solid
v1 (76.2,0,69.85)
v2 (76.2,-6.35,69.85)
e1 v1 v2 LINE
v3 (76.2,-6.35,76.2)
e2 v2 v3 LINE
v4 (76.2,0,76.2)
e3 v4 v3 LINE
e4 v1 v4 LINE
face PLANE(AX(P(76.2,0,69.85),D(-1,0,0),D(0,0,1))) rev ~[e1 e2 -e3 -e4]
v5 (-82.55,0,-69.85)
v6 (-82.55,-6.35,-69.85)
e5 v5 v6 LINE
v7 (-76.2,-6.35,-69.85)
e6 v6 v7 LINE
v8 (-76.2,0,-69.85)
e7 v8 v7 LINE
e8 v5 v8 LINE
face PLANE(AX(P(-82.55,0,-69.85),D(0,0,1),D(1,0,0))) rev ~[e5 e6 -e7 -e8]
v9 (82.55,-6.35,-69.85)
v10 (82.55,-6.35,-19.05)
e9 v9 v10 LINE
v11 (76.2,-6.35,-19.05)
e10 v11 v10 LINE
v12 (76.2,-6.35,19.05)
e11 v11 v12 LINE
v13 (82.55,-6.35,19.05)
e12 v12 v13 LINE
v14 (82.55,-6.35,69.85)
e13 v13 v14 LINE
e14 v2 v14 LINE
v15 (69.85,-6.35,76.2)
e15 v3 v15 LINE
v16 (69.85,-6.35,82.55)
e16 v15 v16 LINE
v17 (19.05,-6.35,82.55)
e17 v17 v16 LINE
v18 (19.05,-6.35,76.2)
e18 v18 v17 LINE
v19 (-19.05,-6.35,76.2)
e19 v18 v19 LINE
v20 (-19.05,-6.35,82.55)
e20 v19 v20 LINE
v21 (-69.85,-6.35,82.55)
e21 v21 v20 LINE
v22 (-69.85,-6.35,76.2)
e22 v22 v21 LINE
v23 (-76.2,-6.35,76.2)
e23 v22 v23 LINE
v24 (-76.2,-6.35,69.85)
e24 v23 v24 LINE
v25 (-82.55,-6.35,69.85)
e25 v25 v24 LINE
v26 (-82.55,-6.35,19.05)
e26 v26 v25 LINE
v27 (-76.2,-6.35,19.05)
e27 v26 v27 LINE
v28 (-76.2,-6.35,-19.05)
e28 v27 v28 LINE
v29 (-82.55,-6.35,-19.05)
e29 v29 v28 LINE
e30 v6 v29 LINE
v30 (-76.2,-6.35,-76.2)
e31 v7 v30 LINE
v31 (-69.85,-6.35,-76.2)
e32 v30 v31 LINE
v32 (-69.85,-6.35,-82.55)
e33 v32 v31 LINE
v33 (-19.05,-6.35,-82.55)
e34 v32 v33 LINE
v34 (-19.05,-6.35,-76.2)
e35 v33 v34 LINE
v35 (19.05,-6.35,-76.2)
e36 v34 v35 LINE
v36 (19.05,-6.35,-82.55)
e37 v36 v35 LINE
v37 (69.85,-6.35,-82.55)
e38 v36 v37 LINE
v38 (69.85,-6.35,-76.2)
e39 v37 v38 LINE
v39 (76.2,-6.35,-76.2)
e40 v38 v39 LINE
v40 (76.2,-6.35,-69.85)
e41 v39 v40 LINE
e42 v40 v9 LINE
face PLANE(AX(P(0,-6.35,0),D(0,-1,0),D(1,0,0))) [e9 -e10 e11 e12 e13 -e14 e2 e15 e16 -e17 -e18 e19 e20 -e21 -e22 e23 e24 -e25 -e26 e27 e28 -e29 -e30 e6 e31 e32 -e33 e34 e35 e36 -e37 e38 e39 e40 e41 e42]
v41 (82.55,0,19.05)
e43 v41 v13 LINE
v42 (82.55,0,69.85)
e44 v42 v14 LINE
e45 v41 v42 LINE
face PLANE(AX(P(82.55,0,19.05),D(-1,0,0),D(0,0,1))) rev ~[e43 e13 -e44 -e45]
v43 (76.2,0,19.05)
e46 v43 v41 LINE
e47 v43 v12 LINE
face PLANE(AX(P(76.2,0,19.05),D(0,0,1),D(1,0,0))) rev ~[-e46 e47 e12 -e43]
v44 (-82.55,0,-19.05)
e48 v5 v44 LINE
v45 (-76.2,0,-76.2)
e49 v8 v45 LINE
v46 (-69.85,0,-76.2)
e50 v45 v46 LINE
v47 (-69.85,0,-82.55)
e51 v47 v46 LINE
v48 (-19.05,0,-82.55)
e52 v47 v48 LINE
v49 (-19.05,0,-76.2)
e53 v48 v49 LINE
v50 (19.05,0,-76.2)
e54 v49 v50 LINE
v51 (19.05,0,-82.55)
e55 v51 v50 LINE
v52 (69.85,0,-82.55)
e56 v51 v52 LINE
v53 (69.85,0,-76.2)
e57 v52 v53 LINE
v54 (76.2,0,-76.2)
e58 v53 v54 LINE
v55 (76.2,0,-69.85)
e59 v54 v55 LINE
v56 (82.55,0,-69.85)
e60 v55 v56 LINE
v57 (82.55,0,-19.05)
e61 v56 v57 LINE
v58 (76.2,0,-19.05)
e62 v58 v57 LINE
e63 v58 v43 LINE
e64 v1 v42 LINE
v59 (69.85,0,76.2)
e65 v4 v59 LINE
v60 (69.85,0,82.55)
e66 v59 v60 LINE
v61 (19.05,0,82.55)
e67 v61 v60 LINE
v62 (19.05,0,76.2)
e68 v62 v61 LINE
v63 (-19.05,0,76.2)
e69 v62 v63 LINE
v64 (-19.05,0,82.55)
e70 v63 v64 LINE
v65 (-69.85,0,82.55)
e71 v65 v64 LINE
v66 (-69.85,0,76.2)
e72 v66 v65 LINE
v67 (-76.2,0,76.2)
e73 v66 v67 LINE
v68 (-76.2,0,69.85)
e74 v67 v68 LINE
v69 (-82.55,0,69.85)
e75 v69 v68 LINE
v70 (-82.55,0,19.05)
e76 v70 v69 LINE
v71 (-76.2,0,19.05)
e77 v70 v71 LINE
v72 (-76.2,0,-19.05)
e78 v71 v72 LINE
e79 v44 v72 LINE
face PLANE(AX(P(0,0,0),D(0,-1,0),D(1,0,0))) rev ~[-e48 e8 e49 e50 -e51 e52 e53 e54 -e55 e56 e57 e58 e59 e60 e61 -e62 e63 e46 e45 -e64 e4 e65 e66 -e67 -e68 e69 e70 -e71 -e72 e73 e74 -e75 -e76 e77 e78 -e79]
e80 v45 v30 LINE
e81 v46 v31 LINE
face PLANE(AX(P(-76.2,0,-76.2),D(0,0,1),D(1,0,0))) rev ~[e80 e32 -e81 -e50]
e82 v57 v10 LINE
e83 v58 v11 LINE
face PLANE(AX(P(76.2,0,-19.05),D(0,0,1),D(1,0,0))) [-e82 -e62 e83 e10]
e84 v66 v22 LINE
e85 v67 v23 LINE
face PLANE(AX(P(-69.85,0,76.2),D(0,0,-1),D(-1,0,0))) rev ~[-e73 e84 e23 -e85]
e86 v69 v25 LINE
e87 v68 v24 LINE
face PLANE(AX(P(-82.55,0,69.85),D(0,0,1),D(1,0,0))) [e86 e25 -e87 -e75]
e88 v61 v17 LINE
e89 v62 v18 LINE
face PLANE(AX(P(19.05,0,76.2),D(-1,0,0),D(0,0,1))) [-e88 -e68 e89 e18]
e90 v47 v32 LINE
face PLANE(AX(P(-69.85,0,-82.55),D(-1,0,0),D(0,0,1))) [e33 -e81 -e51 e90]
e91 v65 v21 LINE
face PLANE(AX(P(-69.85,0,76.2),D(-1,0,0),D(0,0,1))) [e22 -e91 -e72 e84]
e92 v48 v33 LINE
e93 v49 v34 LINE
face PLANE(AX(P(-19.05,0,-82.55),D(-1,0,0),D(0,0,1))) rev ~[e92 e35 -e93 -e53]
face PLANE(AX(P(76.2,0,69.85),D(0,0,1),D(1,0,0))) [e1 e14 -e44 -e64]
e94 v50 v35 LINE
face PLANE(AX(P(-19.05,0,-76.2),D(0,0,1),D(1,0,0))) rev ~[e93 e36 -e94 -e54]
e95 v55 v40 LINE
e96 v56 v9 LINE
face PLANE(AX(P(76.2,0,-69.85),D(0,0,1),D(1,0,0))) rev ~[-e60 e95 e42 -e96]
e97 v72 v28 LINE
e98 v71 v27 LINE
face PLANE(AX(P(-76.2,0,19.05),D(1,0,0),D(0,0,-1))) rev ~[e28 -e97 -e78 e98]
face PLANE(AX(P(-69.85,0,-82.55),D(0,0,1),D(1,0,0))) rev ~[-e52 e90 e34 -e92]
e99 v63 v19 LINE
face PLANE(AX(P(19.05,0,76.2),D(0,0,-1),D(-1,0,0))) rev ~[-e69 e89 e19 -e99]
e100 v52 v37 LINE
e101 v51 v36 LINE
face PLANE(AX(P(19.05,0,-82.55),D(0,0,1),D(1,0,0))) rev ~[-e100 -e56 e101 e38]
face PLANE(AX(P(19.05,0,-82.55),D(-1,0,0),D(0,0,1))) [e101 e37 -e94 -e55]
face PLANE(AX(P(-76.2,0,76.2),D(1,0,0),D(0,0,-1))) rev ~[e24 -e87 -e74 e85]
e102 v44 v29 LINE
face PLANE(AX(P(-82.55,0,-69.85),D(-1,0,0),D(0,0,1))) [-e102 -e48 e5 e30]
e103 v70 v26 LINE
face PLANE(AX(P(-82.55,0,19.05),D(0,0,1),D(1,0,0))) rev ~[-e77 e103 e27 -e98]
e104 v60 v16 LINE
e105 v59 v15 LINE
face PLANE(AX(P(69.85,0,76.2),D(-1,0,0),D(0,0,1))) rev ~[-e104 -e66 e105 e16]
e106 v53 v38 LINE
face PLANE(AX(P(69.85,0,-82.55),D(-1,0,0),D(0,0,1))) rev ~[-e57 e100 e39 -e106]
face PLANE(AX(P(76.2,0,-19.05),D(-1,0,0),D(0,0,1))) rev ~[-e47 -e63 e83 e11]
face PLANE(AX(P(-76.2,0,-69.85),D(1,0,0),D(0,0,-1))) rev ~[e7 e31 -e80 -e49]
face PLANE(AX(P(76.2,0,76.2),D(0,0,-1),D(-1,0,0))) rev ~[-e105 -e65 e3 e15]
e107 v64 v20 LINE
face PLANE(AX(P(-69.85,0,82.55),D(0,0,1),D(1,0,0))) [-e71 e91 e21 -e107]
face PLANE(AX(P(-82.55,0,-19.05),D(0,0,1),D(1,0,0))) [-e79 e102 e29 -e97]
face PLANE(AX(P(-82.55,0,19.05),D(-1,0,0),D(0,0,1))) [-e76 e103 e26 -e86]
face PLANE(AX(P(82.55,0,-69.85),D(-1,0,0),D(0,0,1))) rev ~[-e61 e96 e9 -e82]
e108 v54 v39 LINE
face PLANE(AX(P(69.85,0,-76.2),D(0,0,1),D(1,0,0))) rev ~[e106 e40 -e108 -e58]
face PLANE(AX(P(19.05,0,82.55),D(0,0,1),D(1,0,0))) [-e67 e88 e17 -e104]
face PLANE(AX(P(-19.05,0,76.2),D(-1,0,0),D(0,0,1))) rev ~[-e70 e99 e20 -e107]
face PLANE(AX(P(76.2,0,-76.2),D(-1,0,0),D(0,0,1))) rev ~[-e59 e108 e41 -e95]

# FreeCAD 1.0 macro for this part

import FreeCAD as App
import Part
import Sketcher

V = App.Vector
Q = App.Units.Quantity

doc = App.newDocument("Part")
params = doc.addObject("Spreadsheet::Sheet", "Params")
for row, (alias, value) in enumerate([
    ("sketch1_width", "2 in"),
    ("sketch1_width2", "1.5 in"),
    ("pad1_length", "0.25 in"),
], start=1):
    params.set(f"A{row}", alias)
    params.set(f"B{row}", "=" + value)
    params.setAlias(f"B{row}", alias)

body = doc.addObject("PartDesign::Body", "Body")

# Sketch on XZ plane
sketch1 = body.newObject("Sketcher::SketchObject", "Sketch")
sketch1.AttachmentSupport = (doc.getObject("XZ_Plane"), [""])
sketch1.MapMode = "FlatFace"
sketch1.addGeometry([
    Part.LineSegment(V(76.2, -76.2, 0), V(76.2, -69.85, 0)),  # 0
    Part.LineSegment(V(76.2, -69.85, 0), V(82.55, -69.85, 0)),  # 1
    Part.LineSegment(V(82.55, -69.85, 0), V(82.55, -19.05, 0)),  # 2
    Part.LineSegment(V(82.55, -19.05, 0), V(76.2, -19.05, 0)),  # 3
    Part.LineSegment(V(76.2, -19.05, 0), V(76.2, 19.05, 0)),  # 4
    Part.LineSegment(V(76.2, 19.05, 0), V(82.55, 19.05, 0)),  # 5
    Part.LineSegment(V(82.55, 19.05, 0), V(82.55, 69.85, 0)),  # 6
    Part.LineSegment(V(82.55, 69.85, 0), V(76.2, 69.85, 0)),  # 7
    Part.LineSegment(V(76.2, 69.85, 0), V(76.2, 76.2, 0)),  # 8
    Part.LineSegment(V(76.2, 76.2, 0), V(69.85, 76.2, 0)),  # 9
    Part.LineSegment(V(69.85, 76.2, 0), V(69.85, 82.55, 0)),  # 10
    Part.LineSegment(V(69.85, 82.55, 0), V(19.05, 82.55, 0)),  # 11
    Part.LineSegment(V(19.05, 82.55, 0), V(19.05, 76.2, 0)),  # 12
    Part.LineSegment(V(19.05, 76.2, 0), V(-19.05, 76.2, 0)),  # 13
    Part.LineSegment(V(-19.05, 76.2, 0), V(-19.05, 82.55, 0)),  # 14
    Part.LineSegment(V(-19.05, 82.55, 0), V(-69.85, 82.55, 0)),  # 15
    Part.LineSegment(V(-69.85, 82.55, 0), V(-69.85, 76.2, 0)),  # 16
    Part.LineSegment(V(-69.85, 76.2, 0), V(-76.2, 76.2, 0)),  # 17
    Part.LineSegment(V(-76.2, 76.2, 0), V(-76.2, 69.85, 0)),  # 18
    Part.LineSegment(V(-76.2, 69.85, 0), V(-82.55, 69.85, 0)),  # 19
    Part.LineSegment(V(-82.55, 69.85, 0), V(-82.55, 19.05, 0)),  # 20
    Part.LineSegment(V(-82.55, 19.05, 0), V(-76.2, 19.05, 0)),  # 21
    Part.LineSegment(V(-76.2, 19.05, 0), V(-76.2, -19.05, 0)),  # 22
    Part.LineSegment(V(-76.2, -19.05, 0), V(-82.55, -19.05, 0)),  # 23
    Part.LineSegment(V(-82.55, -19.05, 0), V(-82.55, -69.85, 0)),  # 24
    Part.LineSegment(V(-82.55, -69.85, 0), V(-76.2, -69.85, 0)),  # 25
    Part.LineSegment(V(-76.2, -69.85, 0), V(-76.2, -76.2, 0)),  # 26
    Part.LineSegment(V(-76.2, -76.2, 0), V(-69.85, -76.2, 0)),  # 27
    Part.LineSegment(V(-69.85, -76.2, 0), V(-69.85, -82.55, 0)),  # 28
    Part.LineSegment(V(-69.85, -82.55, 0), V(-19.05, -82.55, 0)),  # 29
    Part.LineSegment(V(-19.05, -82.55, 0), V(-19.05, -76.2, 0)),  # 30
    Part.LineSegment(V(-19.05, -76.2, 0), V(19.05, -76.2, 0)),  # 31
    Part.LineSegment(V(19.05, -76.2, 0), V(19.05, -82.55, 0)),  # 32
    Part.LineSegment(V(19.05, -82.55, 0), V(69.85, -82.55, 0)),  # 33
    Part.LineSegment(V(69.85, -82.55, 0), V(69.85, -76.2, 0)),  # 34
    Part.LineSegment(V(69.85, -76.2, 0), V(76.2, -76.2, 0)),  # 35
], False)
sketch1.addConstraint([
    Sketcher.Constraint("Coincident", 0, 2, 1, 1),
    Sketcher.Constraint("Coincident", 1, 2, 2, 1),
    Sketcher.Constraint("Coincident", 2, 2, 3, 1),
    Sketcher.Constraint("Coincident", 3, 2, 4, 1),
    Sketcher.Constraint("Coincident", 4, 2, 5, 1),
    Sketcher.Constraint("Coincident", 5, 2, 6, 1),
    Sketcher.Constraint("Coincident", 6, 2, 7, 1),
    Sketcher.Constraint("Coincident", 7, 2, 8, 1),
    Sketcher.Constraint("Coincident", 8, 2, 9, 1),
    Sketcher.Constraint("Coincident", 9, 2, 10, 1),
    Sketcher.Constraint("Coincident", 10, 2, 11, 1),
    Sketcher.Constraint("Coincident", 11, 2, 12, 1),
    Sketcher.Constraint("Coincident", 12, 2, 13, 1),
    Sketcher.Constraint("Coincident", 13, 2, 14, 1),
    Sketcher.Constraint("Coincident", 14, 2, 15, 1),
    Sketcher.Constraint("Coincident", 15, 2, 16, 1),
    Sketcher.Constraint("Coincident", 16, 2, 17, 1),
    Sketcher.Constraint("Coincident", 17, 2, 18, 1),
    Sketcher.Constraint("Coincident", 18, 2, 19, 1),
    Sketcher.Constraint("Coincident", 19, 2, 20, 1),
    Sketcher.Constraint("Coincident", 20, 2, 21, 1),
    Sketcher.Constraint("Coincident", 21, 2, 22, 1),
    Sketcher.Constraint("Coincident", 22, 2, 23, 1),
    Sketcher.Constraint("Coincident", 23, 2, 24, 1),
    Sketcher.Constraint("Coincident", 24, 2, 25, 1),
    Sketcher.Constraint("Coincident", 25, 2, 26, 1),
    Sketcher.Constraint("Coincident", 26, 2, 27, 1),
    Sketcher.Constraint("Coincident", 27, 2, 28, 1),
    Sketcher.Constraint("Coincident", 28, 2, 29, 1),
    Sketcher.Constraint("Coincident", 29, 2, 30, 1),
    Sketcher.Constraint("Coincident", 30, 2, 31, 1),
    Sketcher.Constraint("Coincident", 31, 2, 32, 1),
    Sketcher.Constraint("Coincident", 32, 2, 33, 1),
    Sketcher.Constraint("Coincident", 33, 2, 34, 1),
    Sketcher.Constraint("Coincident", 34, 2, 35, 1),
    Sketcher.Constraint("Coincident", 35, 2, 0, 1),
    Sketcher.Constraint("Vertical", 0),
    Sketcher.Constraint("Horizontal", 1),
    Sketcher.Constraint("Vertical", 2),
    Sketcher.Constraint("Horizontal", 3),
    Sketcher.Constraint("Vertical", 4),
    Sketcher.Constraint("Horizontal", 5),
    Sketcher.Constraint("Vertical", 6),
    Sketcher.Constraint("Horizontal", 7),
    Sketcher.Constraint("Vertical", 8),
    Sketcher.Constraint("Horizontal", 9),
    Sketcher.Constraint("Vertical", 10),
    Sketcher.Constraint("Horizontal", 11),
    Sketcher.Constraint("Vertical", 12),
    Sketcher.Constraint("Horizontal", 13),
    Sketcher.Constraint("Vertical", 14),
    Sketcher.Constraint("Horizontal", 15),
    Sketcher.Constraint("Vertical", 16),
    Sketcher.Constraint("Horizontal", 17),
    Sketcher.Constraint("Vertical", 18),
    Sketcher.Constraint("Horizontal", 19),
    Sketcher.Constraint("Vertical", 20),
    Sketcher.Constraint("Horizontal", 21),
    Sketcher.Constraint("Vertical", 22),
    Sketcher.Constraint("Horizontal", 23),
    Sketcher.Constraint("Vertical", 24),
    Sketcher.Constraint("Horizontal", 25),
    Sketcher.Constraint("Vertical", 26),
    Sketcher.Constraint("Horizontal", 27),
    Sketcher.Constraint("Vertical", 28),
    Sketcher.Constraint("Horizontal", 29),
    Sketcher.Constraint("Vertical", 30),
    Sketcher.Constraint("Horizontal", 31),
    Sketcher.Constraint("Vertical", 32),
    Sketcher.Constraint("Horizontal", 33),
    Sketcher.Constraint("Vertical", 34),
    Sketcher.Constraint("Horizontal", 35),
    Sketcher.Constraint("Symmetric", 0, 2, 18, 2, -1, 1),
    Sketcher.Constraint("Symmetric", 2, 2, 20, 2, -1, 1),
    Sketcher.Constraint("Symmetric", 4, 2, 22, 2, -1, 1),
    Sketcher.Constraint("Symmetric", 6, 2, 24, 2, -1, 1),
    Sketcher.Constraint("Symmetric", 8, 2, 26, 2, -1, 1),
    Sketcher.Constraint("Symmetric", 10, 2, 28, 2, -1, 1),
    Sketcher.Constraint("Symmetric", 12, 2, 30, 2, -1, 1),
    Sketcher.Constraint("Symmetric", 14, 2, 32, 2, -1, 1),
    Sketcher.Constraint("Symmetric", 16, 2, 34, 2, -1, 1),
    Sketcher.Constraint("Symmetric", 11, 2, 14, 2, -2),
    Sketcher.Constraint("Symmetric", 9, 2, 16, 2, -2),
    Sketcher.Constraint("Symmetric", 7, 2, 18, 2, -2),
    Sketcher.Constraint("Symmetric", 5, 2, 20, 2, -2),
    Sketcher.Constraint("Horizontal", 9, 2, 12, 2),
    Sketcher.Constraint("Vertical", 0, 2, 3, 2),
    Sketcher.Constraint("Equal", 7, 9),
    Sketcher.Constraint("Equal", 35, 0),
    Sketcher.Constraint("Equal", 33, 2),
    Sketcher.Constraint("Equal", 31, 4),
    Sketcher.Constraint("Equal", 8, 10),
    Sketcher.Constraint("DistanceX", 11, 2, 11, 1, Q("2 in")),
    Sketcher.Constraint("DistanceX", 13, 2, 13, 1, Q("1.5 in")),
    Sketcher.Constraint("DistanceX", -1, 1, 0, 2, Q("3 in")),
])
sketch1.setExpression("Constraints[92]", "Params.sketch1_width")
sketch1.setExpression("Constraints[93]", "Params.sketch1_width2")
pad1 = body.newObject("PartDesign::Pad", "Pad")
pad1.Profile = sketch1
pad1.setExpression("Length", "Params.pad1_length")

doc.recompute()
